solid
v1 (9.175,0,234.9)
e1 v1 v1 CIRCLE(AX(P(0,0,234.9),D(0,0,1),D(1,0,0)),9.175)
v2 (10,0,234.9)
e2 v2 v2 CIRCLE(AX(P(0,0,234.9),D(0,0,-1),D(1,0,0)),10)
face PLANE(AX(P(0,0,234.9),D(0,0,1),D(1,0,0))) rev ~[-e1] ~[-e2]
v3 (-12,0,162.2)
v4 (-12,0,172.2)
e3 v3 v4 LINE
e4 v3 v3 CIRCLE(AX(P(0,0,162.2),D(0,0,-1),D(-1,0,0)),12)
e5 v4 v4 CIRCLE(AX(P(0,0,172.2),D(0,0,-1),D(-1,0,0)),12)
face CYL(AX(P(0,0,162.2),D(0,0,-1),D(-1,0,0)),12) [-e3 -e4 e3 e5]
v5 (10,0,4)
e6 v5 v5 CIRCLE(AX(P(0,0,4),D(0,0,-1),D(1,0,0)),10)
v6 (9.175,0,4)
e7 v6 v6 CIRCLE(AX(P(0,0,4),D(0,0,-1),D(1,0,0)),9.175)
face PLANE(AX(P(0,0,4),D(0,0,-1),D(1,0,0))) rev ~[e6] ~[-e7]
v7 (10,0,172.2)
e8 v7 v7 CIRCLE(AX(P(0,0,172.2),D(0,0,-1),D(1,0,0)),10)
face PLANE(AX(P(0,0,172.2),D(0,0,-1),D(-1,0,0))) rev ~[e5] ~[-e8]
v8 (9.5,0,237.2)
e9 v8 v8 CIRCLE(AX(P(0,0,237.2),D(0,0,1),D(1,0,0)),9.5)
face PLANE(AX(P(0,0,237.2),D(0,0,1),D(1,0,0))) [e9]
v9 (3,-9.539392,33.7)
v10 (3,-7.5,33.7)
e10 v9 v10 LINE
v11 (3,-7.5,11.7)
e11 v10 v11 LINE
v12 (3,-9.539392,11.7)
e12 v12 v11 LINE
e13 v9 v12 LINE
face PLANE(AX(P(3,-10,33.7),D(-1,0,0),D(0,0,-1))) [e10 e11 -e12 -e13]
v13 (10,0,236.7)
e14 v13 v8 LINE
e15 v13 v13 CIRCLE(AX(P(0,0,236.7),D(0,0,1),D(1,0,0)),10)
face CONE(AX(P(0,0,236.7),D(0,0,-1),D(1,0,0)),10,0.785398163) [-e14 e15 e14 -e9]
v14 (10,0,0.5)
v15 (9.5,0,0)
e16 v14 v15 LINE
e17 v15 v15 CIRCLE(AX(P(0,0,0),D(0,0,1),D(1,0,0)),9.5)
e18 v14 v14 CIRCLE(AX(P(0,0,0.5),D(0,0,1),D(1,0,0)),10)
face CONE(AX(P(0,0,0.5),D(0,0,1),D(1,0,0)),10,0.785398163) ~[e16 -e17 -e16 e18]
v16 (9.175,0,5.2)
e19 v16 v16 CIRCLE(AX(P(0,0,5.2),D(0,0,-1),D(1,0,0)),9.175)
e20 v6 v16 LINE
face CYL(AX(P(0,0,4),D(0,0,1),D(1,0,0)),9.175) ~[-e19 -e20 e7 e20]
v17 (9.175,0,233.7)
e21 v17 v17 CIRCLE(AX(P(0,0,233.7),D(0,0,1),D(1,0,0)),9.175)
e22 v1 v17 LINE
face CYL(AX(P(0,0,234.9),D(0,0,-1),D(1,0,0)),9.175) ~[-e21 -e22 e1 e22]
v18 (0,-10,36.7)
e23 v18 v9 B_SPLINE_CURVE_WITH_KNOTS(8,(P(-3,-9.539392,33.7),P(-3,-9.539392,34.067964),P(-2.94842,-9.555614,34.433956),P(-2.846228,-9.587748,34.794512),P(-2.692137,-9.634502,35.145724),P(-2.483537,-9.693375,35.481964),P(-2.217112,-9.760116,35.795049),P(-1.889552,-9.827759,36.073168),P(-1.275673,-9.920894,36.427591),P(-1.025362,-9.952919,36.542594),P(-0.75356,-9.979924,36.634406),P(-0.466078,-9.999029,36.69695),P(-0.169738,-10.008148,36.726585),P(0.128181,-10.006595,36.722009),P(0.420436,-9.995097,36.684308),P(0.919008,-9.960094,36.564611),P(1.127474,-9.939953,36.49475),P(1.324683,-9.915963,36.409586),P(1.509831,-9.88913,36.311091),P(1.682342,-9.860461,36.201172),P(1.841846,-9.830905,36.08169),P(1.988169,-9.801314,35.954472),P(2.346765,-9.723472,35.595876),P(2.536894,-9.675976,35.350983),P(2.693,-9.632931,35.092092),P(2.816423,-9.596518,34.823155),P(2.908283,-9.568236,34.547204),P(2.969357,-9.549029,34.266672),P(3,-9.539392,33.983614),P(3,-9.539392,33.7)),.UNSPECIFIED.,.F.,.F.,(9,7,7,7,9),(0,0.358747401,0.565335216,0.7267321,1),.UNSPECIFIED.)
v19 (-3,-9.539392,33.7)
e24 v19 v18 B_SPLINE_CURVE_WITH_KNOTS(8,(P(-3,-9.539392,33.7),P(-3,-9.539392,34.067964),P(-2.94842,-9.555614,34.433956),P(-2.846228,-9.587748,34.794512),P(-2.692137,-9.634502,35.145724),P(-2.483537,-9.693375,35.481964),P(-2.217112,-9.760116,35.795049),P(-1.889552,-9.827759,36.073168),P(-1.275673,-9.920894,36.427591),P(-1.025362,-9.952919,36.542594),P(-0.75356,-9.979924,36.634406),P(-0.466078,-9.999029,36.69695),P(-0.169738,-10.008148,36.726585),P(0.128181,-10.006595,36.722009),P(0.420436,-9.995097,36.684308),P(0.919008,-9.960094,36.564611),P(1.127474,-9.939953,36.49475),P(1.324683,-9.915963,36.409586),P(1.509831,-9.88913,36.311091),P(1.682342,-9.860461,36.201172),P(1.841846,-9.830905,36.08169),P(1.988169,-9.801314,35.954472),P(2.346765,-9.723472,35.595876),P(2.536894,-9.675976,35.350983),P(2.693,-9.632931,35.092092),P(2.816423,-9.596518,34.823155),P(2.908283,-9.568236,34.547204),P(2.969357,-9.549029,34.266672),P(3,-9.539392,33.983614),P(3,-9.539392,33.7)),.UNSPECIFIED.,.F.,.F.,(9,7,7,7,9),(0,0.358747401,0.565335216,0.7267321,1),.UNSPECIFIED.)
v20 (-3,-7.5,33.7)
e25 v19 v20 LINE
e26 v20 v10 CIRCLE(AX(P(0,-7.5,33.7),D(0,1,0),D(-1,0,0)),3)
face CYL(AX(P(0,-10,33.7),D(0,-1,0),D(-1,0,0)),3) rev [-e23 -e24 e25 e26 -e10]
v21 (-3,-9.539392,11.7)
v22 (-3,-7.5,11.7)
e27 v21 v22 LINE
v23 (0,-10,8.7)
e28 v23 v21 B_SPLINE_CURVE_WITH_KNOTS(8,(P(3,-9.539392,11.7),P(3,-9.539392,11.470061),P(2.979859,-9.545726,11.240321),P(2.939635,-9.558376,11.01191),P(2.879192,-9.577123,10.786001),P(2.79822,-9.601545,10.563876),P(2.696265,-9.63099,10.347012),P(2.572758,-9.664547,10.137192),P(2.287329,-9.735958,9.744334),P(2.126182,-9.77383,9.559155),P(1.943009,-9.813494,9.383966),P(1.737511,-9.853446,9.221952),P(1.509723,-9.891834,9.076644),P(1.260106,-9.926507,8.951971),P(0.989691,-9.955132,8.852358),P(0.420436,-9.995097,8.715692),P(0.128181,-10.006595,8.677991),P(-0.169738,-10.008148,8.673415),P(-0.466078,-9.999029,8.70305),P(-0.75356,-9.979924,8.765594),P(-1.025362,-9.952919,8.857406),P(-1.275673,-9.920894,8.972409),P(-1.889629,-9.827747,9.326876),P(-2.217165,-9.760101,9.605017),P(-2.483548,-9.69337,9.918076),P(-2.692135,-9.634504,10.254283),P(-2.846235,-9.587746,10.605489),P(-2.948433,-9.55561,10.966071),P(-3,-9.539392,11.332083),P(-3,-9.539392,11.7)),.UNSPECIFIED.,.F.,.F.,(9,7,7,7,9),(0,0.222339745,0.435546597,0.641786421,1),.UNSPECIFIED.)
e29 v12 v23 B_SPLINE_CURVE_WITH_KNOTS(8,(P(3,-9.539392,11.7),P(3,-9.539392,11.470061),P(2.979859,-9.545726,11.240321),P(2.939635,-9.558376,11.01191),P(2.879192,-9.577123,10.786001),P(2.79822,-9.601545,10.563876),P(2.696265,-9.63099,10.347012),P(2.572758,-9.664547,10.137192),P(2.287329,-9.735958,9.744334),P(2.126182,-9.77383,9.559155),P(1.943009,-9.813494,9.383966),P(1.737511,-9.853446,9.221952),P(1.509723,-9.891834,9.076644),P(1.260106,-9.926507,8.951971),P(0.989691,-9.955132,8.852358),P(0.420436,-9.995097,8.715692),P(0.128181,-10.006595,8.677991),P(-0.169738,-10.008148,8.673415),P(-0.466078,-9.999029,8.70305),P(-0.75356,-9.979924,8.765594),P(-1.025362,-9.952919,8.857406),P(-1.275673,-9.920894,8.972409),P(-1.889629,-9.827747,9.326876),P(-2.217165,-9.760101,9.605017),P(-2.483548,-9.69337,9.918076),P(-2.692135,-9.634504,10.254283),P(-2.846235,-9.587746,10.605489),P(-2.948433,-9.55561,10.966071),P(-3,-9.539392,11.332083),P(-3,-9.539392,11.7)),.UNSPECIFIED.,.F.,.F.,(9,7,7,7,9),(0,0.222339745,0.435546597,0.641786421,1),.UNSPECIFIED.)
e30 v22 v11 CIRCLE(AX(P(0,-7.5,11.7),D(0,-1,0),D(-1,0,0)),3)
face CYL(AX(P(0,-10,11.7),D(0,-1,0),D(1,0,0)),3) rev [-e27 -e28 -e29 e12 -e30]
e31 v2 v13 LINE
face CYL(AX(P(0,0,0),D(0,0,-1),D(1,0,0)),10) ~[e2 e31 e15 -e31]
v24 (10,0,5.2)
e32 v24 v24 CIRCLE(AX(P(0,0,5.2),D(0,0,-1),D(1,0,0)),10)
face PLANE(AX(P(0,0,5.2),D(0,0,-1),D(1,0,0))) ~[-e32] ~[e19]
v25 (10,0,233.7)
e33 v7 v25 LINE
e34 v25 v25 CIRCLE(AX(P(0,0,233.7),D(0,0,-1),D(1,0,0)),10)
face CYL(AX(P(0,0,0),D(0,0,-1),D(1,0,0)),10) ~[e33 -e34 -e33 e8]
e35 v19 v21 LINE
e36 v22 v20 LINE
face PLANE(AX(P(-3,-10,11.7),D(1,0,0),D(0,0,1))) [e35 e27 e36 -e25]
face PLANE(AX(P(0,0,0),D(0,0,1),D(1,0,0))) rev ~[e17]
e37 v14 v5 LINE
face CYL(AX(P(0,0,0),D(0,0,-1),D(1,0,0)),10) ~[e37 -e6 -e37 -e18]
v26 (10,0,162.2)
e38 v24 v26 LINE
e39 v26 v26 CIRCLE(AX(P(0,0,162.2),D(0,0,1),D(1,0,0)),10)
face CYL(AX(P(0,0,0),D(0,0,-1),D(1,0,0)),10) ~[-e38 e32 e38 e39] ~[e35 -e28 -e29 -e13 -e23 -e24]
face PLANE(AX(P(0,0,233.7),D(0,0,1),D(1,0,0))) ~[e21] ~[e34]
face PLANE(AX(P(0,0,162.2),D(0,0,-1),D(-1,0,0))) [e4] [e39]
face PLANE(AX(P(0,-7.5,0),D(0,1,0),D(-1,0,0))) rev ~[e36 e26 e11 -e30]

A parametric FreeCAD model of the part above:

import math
import FreeCAD as App
import Part
import Sketcher


def edges_at(feature, points):
    """Names of the edges that pass closest to the given points."""
    edges = feature.Shape.Edges
    near = lambda p: min(range(len(edges)), key=lambda i: edges[i].distToShape(Part.Vertex(*p))[0])
    return sorted({f"Edge{near(p) + 1}" for p in points})


def add_polygon(sketch, points):
    """Adds a closed chain of lines whose ends are joined by coincident constraints."""
    first, n = sketch.GeometryCount, len(points)
    for a, b in zip(points, points[1:] + points[:1]):
        sketch.addGeometry(Part.LineSegment(App.Vector(*a, 0), App.Vector(*b, 0)), False)
    for i in range(n):
        sketch.addConstraint(Sketcher.Constraint("Coincident", first + i, 2, first + (i + 1) % n, 1))

doc = App.newDocument("Part")
body = doc.addObject("PartDesign::Body", "Body")

sketch1 = doc.addObject("Sketcher::SketchObject", "Sketch")
body.addObject(sketch1)
sketch1.AttachmentSupport = (doc.XY_Plane, [""])
sketch1.MapMode = "FlatFace"
sketch1.addGeometry(Part.Circle(App.Vector(0, 0, 0), App.Vector(0, 0, 1), 10), False)
sketch1.addConstraint(Sketcher.Constraint("Coincident", 0, 3, -1, 1))
sketch1.addConstraint(Sketcher.Constraint("Diameter", 0, 20.0))
pad1 = doc.addObject("PartDesign::Pad", "Pad")
body.addObject(pad1)
pad1.Profile = sketch1
pad1.Length = 237.2

sketch2 = doc.addObject("Sketcher::SketchObject", "Sketch001")
body.addObject(sketch2)
sketch2.AttachmentSupport = (doc.XZ_Plane, [""])
sketch2.MapMode = "FlatFace"
sketch2.AttachmentOffset = App.Placement(App.Vector(0, 0, 10), App.Rotation())
sketch2.addGeometry(Part.LineSegment(App.Vector(-3, 11.7, 0), App.Vector(-3, 33.7, 0)), False)
sketch2.addGeometry(Part.ArcOfCircle(Part.Circle(App.Vector(0, 33.7, 0), App.Vector(0, 0, 1), 3), math.radians(0), math.radians(180)), False)
sketch2.addGeometry(Part.LineSegment(App.Vector(3, 33.7, 0), App.Vector(3, 11.7, 0)), False)
sketch2.addGeometry(Part.ArcOfCircle(Part.Circle(App.Vector(0, 11.7, 0), App.Vector(0, 0, 1), 3), math.radians(180), math.radians(360)), False)
sketch2.addConstraint(Sketcher.Constraint("Tangent", 0, 2, 1, 2))
sketch2.addConstraint(Sketcher.Constraint("Tangent", 1, 1, 2, 1))
sketch2.addConstraint(Sketcher.Constraint("Tangent", 2, 2, 3, 2))
sketch2.addConstraint(Sketcher.Constraint("Tangent", 3, 1, 0, 1))
sketch2.addConstraint(Sketcher.Constraint("Vertical", 0))
sketch2.addConstraint(Sketcher.Constraint("Vertical", 2))
sketch2.addConstraint(Sketcher.Constraint("PointOnObject", 1, 3, -2))
sketch2.addConstraint(Sketcher.Constraint("Radius", 1, 3.0))
sketch2.addConstraint(Sketcher.Constraint("DistanceY", 0, 1, 0, 2, 22.0))
sketch2.addConstraint(Sketcher.Constraint("DistanceY", -1, 1, 3, 3, 11.7))
pocket1 = doc.addObject("PartDesign::Pocket", "Pocket")
body.addObject(pocket1)
pocket1.Profile = sketch2
pocket1.Length = 2.5

sketch3 = doc.addObject("Sketcher::SketchObject", "Sketch002")
body.addObject(sketch3)
sketch3.AttachmentSupport = (doc.XZ_Plane, [""])
sketch3.MapMode = "FlatFace"
add_polygon(sketch3, [(9.2, 4), (9.2, 5.2), (16.2, 5.2), (16.2, 4)])
sketch3.addConstraint(Sketcher.Constraint("Vertical", 0))
sketch3.addConstraint(Sketcher.Constraint("Horizontal", 1))
sketch3.addConstraint(Sketcher.Constraint("Vertical", 2))
sketch3.addConstraint(Sketcher.Constraint("Horizontal", 3))
sketch3.addConstraint(Sketcher.Constraint("DistanceY", 0, 1, 0, 2, 1.2))
sketch3.addConstraint(Sketcher.Constraint("DistanceY", -1, 1, 2, 2, 4.0))
sketch3.addConstraint(Sketcher.Constraint("DistanceX", 1, 1, 1, 2, 7.008))
sketch3.addConstraint(Sketcher.Constraint("DistanceX", -1, 1, 0, 2, 9.175))
groove = doc.addObject("PartDesign::Groove", "Groove")
body.addObject(groove)
groove.Profile = sketch3
groove.ReferenceAxis = (sketch3, ["V_Axis"])
groove.Angle = 360
doc.recompute()

chamfer = doc.addObject("PartDesign::Chamfer", "Chamfer")
body.addObject(chamfer)
chamfer.Base = (groove, edges_at(groove, [(-10, 0, 0)]))
chamfer.Size = 0.5

sketch4 = doc.addObject("Sketcher::SketchObject", "Sketch003")
body.addObject(sketch4)
sketch4.AttachmentSupport = (doc.XY_Plane, [""])
sketch4.MapMode = "FlatFace"
sketch4.AttachmentOffset = App.Placement(App.Vector(0, 0, 162.2), App.Rotation())
sketch4.addGeometry(Part.Circle(App.Vector(0, 0, 0), App.Vector(0, 0, 1), 12), False)
sketch4.addGeometry(Part.Circle(App.Vector(0, 0, 0), App.Vector(0, 0, 1), 10), False)
sketch4.addConstraint(Sketcher.Constraint("Coincident", 0, 3, -1, 1))
sketch4.addConstraint(Sketcher.Constraint("Coincident", 1, 3, -1, 1))
sketch4.addConstraint(Sketcher.Constraint("Diameter", 0, 24.0))
sketch4.addConstraint(Sketcher.Constraint("Diameter", 1, 20.0))
pad2 = doc.addObject("PartDesign::Pad", "Pad001")
body.addObject(pad2)
pad2.Profile = sketch4
pad2.Length = 10
doc.recompute()

chamfer2 = doc.addObject("PartDesign::Chamfer", "Chamfer001")
body.addObject(chamfer2)
chamfer2.Base = (pad2, edges_at(pad2, [(-10, 0, 237.2)]))
chamfer2.Size = 0.5

sketch5 = doc.addObject("Sketcher::SketchObject", "Sketch004")
body.addObject(sketch5)
sketch5.AttachmentSupport = (doc.XZ_Plane, [""])
sketch5.MapMode = "FlatFace"
add_polygon(sketch5, [(9.2, 234.9), (12, 234.9), (12, 233.7), (9.2, 233.7)])
sketch5.addConstraint(Sketcher.Constraint("Horizontal", 0))
sketch5.addConstraint(Sketcher.Constraint("Vertical", 1))
sketch5.addConstraint(Sketcher.Constraint("Horizontal", 2))
sketch5.addConstraint(Sketcher.Constraint("Vertical", 3))
sketch5.addConstraint(Sketcher.Constraint("DistanceY", 1, 2, 1, 1, 1.2))
sketch5.addConstraint(Sketcher.Constraint("DistanceX", -1, 1, 0, 2, 12.0))
sketch5.addConstraint(Sketcher.Constraint("DistanceX", -1, 1, 2, 2, 9.175))
sketch5.addConstraint(Sketcher.Constraint("DistanceY", -1, 1, 0, 2, 234.9))
groove2 = doc.addObject("PartDesign::Groove", "Groove001")
body.addObject(groove2)
groove2.Profile = sketch5
groove2.ReferenceAxis = (sketch5, ["V_Axis"])
groove2.Angle = 360

doc.recompute()
